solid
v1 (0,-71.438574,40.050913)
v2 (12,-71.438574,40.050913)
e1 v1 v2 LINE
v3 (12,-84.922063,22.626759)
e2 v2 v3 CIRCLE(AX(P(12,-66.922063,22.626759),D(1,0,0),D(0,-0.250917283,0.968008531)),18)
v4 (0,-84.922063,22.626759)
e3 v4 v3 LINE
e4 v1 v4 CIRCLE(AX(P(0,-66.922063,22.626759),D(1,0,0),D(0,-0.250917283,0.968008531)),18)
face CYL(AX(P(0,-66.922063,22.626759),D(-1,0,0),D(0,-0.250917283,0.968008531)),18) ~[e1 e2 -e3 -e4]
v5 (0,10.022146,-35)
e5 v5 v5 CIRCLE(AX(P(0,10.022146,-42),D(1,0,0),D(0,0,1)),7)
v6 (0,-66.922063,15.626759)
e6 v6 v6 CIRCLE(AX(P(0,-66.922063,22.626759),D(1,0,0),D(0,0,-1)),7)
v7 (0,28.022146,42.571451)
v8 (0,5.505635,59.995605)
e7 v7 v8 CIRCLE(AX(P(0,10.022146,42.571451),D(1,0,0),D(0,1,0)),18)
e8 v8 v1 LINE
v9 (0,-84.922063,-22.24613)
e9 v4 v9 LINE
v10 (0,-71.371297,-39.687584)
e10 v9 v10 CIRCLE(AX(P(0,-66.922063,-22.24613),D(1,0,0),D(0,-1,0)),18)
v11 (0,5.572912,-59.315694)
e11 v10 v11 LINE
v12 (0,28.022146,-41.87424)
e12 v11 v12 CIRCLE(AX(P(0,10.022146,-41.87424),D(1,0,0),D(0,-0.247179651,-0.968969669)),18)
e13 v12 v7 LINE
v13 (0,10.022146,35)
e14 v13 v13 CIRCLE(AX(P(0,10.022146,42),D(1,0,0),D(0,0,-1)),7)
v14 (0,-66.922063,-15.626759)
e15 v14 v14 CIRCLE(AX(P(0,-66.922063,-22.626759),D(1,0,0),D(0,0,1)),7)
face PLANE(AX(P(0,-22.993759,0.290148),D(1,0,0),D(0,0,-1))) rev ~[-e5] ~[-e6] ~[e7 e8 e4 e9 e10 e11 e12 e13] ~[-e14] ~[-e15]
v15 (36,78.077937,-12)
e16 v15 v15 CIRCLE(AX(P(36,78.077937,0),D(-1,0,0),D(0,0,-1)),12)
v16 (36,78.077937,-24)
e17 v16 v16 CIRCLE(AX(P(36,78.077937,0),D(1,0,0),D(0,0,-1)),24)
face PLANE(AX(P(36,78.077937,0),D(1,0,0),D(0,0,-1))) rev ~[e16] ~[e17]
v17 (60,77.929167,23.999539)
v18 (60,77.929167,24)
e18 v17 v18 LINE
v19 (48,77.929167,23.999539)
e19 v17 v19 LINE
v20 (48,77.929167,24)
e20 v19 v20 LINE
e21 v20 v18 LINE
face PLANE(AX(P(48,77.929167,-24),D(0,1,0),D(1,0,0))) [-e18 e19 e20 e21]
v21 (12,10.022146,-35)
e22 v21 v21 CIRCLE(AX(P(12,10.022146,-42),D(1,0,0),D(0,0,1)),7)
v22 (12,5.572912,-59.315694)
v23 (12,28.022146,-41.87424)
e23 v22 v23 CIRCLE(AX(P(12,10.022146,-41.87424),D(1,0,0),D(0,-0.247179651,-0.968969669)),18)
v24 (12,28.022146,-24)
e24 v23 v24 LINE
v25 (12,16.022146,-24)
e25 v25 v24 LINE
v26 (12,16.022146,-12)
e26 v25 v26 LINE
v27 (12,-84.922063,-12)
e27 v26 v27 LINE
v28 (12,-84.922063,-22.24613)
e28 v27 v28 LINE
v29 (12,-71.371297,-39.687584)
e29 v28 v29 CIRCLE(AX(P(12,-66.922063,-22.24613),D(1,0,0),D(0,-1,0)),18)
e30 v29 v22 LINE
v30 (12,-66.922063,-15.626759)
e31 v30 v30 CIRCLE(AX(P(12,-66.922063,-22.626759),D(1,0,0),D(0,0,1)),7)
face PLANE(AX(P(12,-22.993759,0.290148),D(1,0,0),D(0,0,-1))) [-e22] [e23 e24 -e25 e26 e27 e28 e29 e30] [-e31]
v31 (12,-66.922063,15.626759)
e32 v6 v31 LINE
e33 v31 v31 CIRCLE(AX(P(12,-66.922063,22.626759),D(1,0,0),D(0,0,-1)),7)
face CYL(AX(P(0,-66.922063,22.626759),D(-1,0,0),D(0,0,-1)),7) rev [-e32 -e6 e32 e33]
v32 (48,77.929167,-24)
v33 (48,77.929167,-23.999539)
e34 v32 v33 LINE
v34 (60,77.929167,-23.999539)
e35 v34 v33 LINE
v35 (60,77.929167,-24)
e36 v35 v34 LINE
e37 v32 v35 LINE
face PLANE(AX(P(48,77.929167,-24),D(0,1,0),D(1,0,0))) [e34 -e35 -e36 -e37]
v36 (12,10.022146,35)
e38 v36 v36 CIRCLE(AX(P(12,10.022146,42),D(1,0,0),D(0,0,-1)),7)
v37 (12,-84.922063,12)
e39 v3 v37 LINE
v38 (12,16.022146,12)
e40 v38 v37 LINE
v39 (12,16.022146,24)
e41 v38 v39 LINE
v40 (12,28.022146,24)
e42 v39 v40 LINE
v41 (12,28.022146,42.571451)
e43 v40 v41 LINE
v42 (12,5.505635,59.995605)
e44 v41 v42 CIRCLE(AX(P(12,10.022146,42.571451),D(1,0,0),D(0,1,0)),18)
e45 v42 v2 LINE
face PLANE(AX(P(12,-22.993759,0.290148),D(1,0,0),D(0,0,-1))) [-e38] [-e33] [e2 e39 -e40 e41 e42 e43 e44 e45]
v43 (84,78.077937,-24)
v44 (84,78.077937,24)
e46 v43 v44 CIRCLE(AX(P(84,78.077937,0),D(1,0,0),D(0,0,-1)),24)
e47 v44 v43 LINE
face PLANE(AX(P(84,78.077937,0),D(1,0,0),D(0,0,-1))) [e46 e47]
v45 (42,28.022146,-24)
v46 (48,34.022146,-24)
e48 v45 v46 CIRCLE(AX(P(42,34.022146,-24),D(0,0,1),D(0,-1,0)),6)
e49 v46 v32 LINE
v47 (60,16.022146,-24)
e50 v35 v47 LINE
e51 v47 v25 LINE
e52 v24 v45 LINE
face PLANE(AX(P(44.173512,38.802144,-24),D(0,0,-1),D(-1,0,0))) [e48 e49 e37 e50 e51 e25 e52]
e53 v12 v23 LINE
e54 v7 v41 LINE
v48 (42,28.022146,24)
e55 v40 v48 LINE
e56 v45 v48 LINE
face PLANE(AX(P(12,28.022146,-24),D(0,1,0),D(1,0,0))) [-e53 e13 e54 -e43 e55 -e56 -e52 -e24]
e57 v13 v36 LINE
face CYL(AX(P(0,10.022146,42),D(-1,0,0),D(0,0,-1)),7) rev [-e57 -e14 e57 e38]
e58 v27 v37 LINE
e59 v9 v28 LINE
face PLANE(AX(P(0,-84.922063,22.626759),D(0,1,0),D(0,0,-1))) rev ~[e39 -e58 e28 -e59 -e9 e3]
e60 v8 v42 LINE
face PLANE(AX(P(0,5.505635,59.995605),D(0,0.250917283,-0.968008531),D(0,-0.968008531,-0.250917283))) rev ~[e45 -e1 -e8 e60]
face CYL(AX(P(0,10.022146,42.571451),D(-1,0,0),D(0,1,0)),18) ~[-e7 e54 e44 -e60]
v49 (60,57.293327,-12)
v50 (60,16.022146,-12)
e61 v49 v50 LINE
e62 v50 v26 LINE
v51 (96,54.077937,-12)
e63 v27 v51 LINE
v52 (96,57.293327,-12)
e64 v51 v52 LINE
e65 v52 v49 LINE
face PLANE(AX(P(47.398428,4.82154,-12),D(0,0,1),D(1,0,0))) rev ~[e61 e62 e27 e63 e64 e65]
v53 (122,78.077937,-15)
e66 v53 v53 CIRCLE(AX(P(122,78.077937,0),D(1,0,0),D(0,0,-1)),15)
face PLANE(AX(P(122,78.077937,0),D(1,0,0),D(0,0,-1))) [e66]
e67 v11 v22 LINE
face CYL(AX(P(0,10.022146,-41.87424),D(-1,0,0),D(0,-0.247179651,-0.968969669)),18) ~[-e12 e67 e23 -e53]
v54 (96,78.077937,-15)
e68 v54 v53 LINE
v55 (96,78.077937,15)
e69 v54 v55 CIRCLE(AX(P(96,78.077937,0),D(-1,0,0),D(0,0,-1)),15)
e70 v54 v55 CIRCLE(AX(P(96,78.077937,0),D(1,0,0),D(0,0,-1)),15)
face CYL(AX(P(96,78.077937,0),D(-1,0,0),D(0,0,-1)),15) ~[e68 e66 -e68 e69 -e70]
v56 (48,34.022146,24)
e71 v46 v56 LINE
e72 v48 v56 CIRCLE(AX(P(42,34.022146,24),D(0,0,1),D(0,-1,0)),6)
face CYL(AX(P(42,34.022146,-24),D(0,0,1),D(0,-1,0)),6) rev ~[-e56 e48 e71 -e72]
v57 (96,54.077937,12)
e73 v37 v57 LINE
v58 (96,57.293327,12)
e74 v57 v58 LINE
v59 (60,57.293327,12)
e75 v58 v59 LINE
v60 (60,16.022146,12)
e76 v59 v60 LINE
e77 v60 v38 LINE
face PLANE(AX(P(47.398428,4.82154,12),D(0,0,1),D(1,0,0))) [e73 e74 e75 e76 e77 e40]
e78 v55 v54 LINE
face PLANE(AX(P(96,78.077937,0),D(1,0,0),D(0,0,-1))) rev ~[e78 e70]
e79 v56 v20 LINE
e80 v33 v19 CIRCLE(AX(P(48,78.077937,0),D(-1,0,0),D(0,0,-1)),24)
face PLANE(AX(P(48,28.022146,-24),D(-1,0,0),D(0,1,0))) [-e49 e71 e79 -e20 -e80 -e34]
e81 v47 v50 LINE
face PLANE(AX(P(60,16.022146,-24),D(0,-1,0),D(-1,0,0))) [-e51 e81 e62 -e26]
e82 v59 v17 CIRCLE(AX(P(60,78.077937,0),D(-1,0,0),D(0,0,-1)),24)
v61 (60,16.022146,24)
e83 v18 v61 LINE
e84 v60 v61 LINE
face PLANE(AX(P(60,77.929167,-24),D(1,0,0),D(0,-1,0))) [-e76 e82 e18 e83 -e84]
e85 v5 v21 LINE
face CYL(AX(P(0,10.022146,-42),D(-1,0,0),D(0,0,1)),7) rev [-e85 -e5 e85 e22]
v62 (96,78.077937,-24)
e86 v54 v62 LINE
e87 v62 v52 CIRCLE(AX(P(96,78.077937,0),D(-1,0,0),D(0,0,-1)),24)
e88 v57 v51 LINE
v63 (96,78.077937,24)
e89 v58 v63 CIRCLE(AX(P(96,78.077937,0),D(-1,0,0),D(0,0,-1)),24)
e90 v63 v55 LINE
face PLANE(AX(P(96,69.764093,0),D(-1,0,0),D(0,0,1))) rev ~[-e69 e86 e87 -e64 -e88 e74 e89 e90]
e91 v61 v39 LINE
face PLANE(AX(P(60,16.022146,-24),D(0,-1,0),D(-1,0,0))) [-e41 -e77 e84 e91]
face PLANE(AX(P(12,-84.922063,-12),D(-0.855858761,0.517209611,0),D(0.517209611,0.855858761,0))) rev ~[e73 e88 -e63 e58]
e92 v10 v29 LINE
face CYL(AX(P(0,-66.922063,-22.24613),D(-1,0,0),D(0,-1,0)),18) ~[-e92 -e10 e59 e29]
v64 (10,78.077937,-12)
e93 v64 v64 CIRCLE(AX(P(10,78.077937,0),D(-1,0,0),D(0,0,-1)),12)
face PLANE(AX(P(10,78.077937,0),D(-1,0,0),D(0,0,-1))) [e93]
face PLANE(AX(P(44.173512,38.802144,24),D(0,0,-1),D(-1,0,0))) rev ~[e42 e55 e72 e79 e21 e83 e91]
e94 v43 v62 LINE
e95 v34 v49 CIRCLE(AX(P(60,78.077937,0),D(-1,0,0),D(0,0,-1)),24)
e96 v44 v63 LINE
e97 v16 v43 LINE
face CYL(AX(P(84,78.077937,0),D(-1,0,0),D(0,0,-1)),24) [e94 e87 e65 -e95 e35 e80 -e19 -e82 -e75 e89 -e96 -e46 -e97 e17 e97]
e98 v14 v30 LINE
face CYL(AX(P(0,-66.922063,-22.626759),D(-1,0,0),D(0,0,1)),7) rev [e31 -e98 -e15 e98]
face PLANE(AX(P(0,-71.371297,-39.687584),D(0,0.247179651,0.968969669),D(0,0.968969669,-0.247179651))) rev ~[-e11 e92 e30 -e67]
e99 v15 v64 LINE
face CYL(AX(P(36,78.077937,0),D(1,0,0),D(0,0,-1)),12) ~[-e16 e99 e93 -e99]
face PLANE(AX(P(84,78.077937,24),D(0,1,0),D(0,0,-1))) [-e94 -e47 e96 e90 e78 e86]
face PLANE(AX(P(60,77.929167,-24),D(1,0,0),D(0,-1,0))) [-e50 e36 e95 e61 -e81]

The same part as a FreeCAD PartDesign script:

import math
import FreeCAD as App
import Part
import Sketcher
Q = App.Units.Quantity


def edges_at(feature, points):
    """Names of the edges that pass closest to the given points."""
    edges = feature.Shape.Edges
    near = lambda p: min(range(len(edges)), key=lambda i: edges[i].distToShape(Part.Vertex(*p))[0])
    return sorted({f"Edge{near(p) + 1}" for p in points})


def add_polygon(sketch, points):
    """Adds a closed chain of lines whose ends are joined by coincident constraints."""
    first, n = sketch.GeometryCount, len(points)
    for a, b in zip(points, points[1:] + points[:1]):
        sketch.addGeometry(Part.LineSegment(App.Vector(*a, 0), App.Vector(*b, 0)), False)
    for i in range(n):
        sketch.addConstraint(Sketcher.Constraint("Coincident", first + i, 2, first + (i + 1) % n, 1))

doc = App.newDocument("Part")
body = doc.addObject("PartDesign::Body", "Body")

# Sketch on YZ plane
sketch1 = doc.addObject("Sketcher::SketchObject", "Sketch")
body.addObject(sketch1)
sketch1.AttachmentSupport = (doc.YZ_Plane, [""])
sketch1.MapMode = "FlatFace"
sketch1.addGeometry(Part.LineSegment(App.Vector(6, 60, 0), App.Vector(-71, 40, 0)), False)
sketch1.addGeometry(Part.ArcOfCircle(Part.Circle(App.Vector(-67, 23, 0), App.Vector(0, 0, 1), 18), math.radians(105), math.radians(180)), False)
sketch1.addGeometry(Part.LineSegment(App.Vector(-85, 23, 0), App.Vector(-85, -22, 0)), False)
sketch1.addGeometry(Part.ArcOfCircle(Part.Circle(App.Vector(-67, -22, 0), App.Vector(0, 0, 1), 18), math.radians(-180), math.radians(-104)), False)
sketch1.addGeometry(Part.LineSegment(App.Vector(-71, -40, 0), App.Vector(6, -59, 0)), False)
sketch1.addGeometry(Part.ArcOfCircle(Part.Circle(App.Vector(10, -42, 0), App.Vector(0, 0, 1), 18), math.radians(-104), math.radians(0)), False)
sketch1.addGeometry(Part.LineSegment(App.Vector(28, -42, 0), App.Vector(28, 43, 0)), False)
sketch1.addGeometry(Part.ArcOfCircle(Part.Circle(App.Vector(10, 43, 0), App.Vector(0, 0, 1), 18), math.radians(0), math.radians(105)), False)
sketch1.addGeometry(Part.Circle(App.Vector(-67, 23, 0), App.Vector(0, 0, 1), 7), False)
sketch1.addGeometry(Part.Circle(App.Vector(-67, -23, 0), App.Vector(0, 0, 1), 7), False)
sketch1.addGeometry(Part.Circle(App.Vector(10, 42, 0), App.Vector(0, 0, 1), 7), False)
sketch1.addGeometry(Part.Circle(App.Vector(10, -42, 0), App.Vector(0, 0, 1), 7), False)
sketch1.addConstraint(Sketcher.Constraint("Tangent", 0, 2, 1, 1))
sketch1.addConstraint(Sketcher.Constraint("Tangent", 1, 2, 2, 1))
sketch1.addConstraint(Sketcher.Constraint("Tangent", 2, 2, 3, 1))
sketch1.addConstraint(Sketcher.Constraint("Tangent", 3, 2, 4, 1))
sketch1.addConstraint(Sketcher.Constraint("Tangent", 4, 2, 5, 1))
sketch1.addConstraint(Sketcher.Constraint("Tangent", 5, 2, 6, 1))
sketch1.addConstraint(Sketcher.Constraint("Tangent", 6, 2, 7, 1))
sketch1.addConstraint(Sketcher.Constraint("Tangent", 7, 2, 0, 1))
sketch1.addConstraint(Sketcher.Constraint("Vertical", 2))
sketch1.addConstraint(Sketcher.Constraint("Vertical", 6))
sketch1.addConstraint(Sketcher.Constraint("Coincident", 8, 3, 1, 3))
sketch1.addConstraint(Sketcher.Constraint("Equal", 1, 3))
sketch1.addConstraint(Sketcher.Constraint("Equal", 3, 5))
sketch1.addConstraint(Sketcher.Constraint("Equal", 5, 7))
sketch1.addConstraint(Sketcher.Constraint("Equal", 8, 9))
sketch1.addConstraint(Sketcher.Constraint("Equal", 9, 10))
sketch1.addConstraint(Sketcher.Constraint("Equal", 10, 11))
sketch1.addConstraint(Sketcher.Constraint("Symmetric", 1, 3, 9, 3, -1))
sketch1.addConstraint(Sketcher.Constraint("Symmetric", 10, 3, 11, 3, -1))
sketch1.addConstraint(Sketcher.Constraint("Vertical", 7, 3, 10, 3))
sketch1.addConstraint(Sketcher.Constraint("Diameter", 8, Q("14 mm")))
sketch1.addConstraint(Sketcher.Constraint("Radius", 1, Q("18 mm")))
sketch1.addConstraint(Sketcher.Constraint("DistanceY", -1, 1, 10, 3, Q("42 mm")))
sketch1.addConstraint(Sketcher.Constraint("DistanceY", 5, 3, 1, 3, Q("64.500999 mm")))
sketch1.addConstraint(Sketcher.Constraint("DistanceY", 2, 2, 2, 1, Q("44.87289 mm")))
sketch1.addConstraint(Sketcher.Constraint("DistanceY", 6, 1, 6, 2, Q("84.445691 mm")))
sketch1.addConstraint(Sketcher.Constraint("Distance", 0, Q("79.487119 mm")))
sketch1.addConstraint(Sketcher.Constraint("DistanceY", -1, 1, 1, 3, Q("22.626759 mm")))
sketch1.addConstraint(Sketcher.Constraint("DistanceX", 1, 3, -1, 1, Q("66.922063 mm")))
pad1 = doc.addObject("PartDesign::Pad", "Pad")
body.addObject(pad1)
pad1.Profile = sketch1
pad1.Length = 12
body2 = doc.addObject("PartDesign::Body", "Body001")

# Sketch on YZ plane
sketch2 = doc.addObject("Sketcher::SketchObject", "Sketch001")
body2.addObject(sketch2)
sketch2.AttachmentSupport = (doc.getObject("YZ_Plane001"), [""])
sketch2.MapMode = "FlatFace"
sketch2.AttachmentOffset = App.Placement(App.Vector(0, 0, 36), App.Rotation())
sketch2.addGeometry(Part.Circle(App.Vector(78, 0, 0), App.Vector(0, 0, 1), 24), False)
sketch2.addConstraint(Sketcher.Constraint("PointOnObject", 0, 3, -1))
sketch2.addConstraint(Sketcher.Constraint("Diameter", 0, Q("48 mm")))
sketch2.addConstraint(Sketcher.Constraint("DistanceX", -1, 1, 0, 3, Q("78.077937 mm")))
pad2 = doc.addObject("PartDesign::Pad", "Pad001")
body2.addObject(pad2)
pad2.Profile = sketch2
pad2.Length = 48

# Sketch on YZ plane
sketch3 = doc.addObject("Sketcher::SketchObject", "Sketch002")
body2.addObject(sketch3)
sketch3.AttachmentSupport = (doc.getObject("YZ_Plane001"), [""])
sketch3.MapMode = "FlatFace"
sketch3.AttachmentOffset = App.Placement(App.Vector(0, 0, 84), App.Rotation())
sketch3.addGeometry(Part.LineSegment(App.Vector(78, -24, 0), App.Vector(78, 24, 0)), False)
sketch3.addGeometry(Part.ArcOfCircle(Part.Circle(App.Vector(78, 0, 0), App.Vector(0, 0, 1), 24), math.radians(90), math.radians(270)), False)
sketch3.addConstraint(Sketcher.Constraint("Coincident", 0, 1, 1, 2))
sketch3.addConstraint(Sketcher.Constraint("Coincident", 1, 1, 0, 2))
sketch3.addConstraint(Sketcher.Constraint("Vertical", 0))
sketch3.addConstraint(Sketcher.Constraint("PointOnObject", 1, 3, -1))
sketch3.addConstraint(Sketcher.Constraint("Vertical", 1, 3, 0, 1))
sketch3.addConstraint(Sketcher.Constraint("Radius", 1, Q("24 mm")))
sketch3.addConstraint(Sketcher.Constraint("DistanceX", -1, 1, 1, 3, Q("78.077937 mm")))
pad3 = doc.addObject("PartDesign::Pad", "Pad002")
body2.addObject(pad3)
pad3.Profile = sketch3
pad3.Length = 12

# Sketch on YZ plane
sketch4 = doc.addObject("Sketcher::SketchObject", "Sketch003")
body2.addObject(sketch4)
sketch4.AttachmentSupport = (doc.getObject("YZ_Plane001"), [""])
sketch4.MapMode = "FlatFace"
sketch4.AttachmentOffset = App.Placement(App.Vector(0, 0, 96), App.Rotation())
sketch4.addGeometry(Part.Circle(App.Vector(78, 0, 0), App.Vector(0, 0, 1), 15), False)
sketch4.addConstraint(Sketcher.Constraint("PointOnObject", 0, 3, -1))
sketch4.addConstraint(Sketcher.Constraint("Diameter", 0, Q("30 mm")))
sketch4.addConstraint(Sketcher.Constraint("DistanceX", -1, 1, 0, 3, Q("78.077937 mm")))
pad4 = doc.addObject("PartDesign::Pad", "Pad003")
body2.addObject(pad4)
pad4.Profile = sketch4
pad4.Length = 26

# Sketch on YZ plane
sketch5 = doc.addObject("Sketcher::SketchObject", "Sketch004")
body2.addObject(sketch5)
sketch5.AttachmentSupport = (doc.getObject("YZ_Plane001"), [""])
sketch5.MapMode = "FlatFace"
sketch5.AttachmentOffset = App.Placement(App.Vector(0, 0, 36), App.Rotation())
sketch5.addGeometry(Part.Circle(App.Vector(78, 0, 0), App.Vector(0, 0, 1), 12), False)
sketch5.addConstraint(Sketcher.Constraint("PointOnObject", 0, 3, -1))
sketch5.addConstraint(Sketcher.Constraint("Diameter", 0, Q("24 mm")))
sketch5.addConstraint(Sketcher.Constraint("DistanceX", -1, 1, 0, 3, Q("78.077937 mm")))
pad5 = doc.addObject("PartDesign::Pad", "Pad004")
body2.addObject(pad5)
pad5.Profile = sketch5
pad5.Length = 26
pad5.Reversed = True
body.AllowCompound = True
doc.recompute()

boolean = doc.addObject("PartDesign::Boolean", "Boolean")
body.addObject(boolean)
boolean.Type = "Fuse"
boolean.addObjects([body2])

# Sketch on XY plane
sketch6 = doc.addObject("Sketcher::SketchObject", "Sketch005")
body.addObject(sketch6)
sketch6.AttachmentSupport = (doc.XY_Plane, [""])
sketch6.MapMode = "FlatFace"
add_polygon(sketch6, [(48, 28), (12, 28), (12, 16), (60, 16), (60, 78), (48, 78)])  # lines 0-5
sketch6.addConstraint(Sketcher.Constraint("Horizontal", 0))
sketch6.addConstraint(Sketcher.Constraint("Vertical", 1))
sketch6.addConstraint(Sketcher.Constraint("Horizontal", 2))
sketch6.addConstraint(Sketcher.Constraint("Vertical", 3))
sketch6.addConstraint(Sketcher.Constraint("Horizontal", 4))
sketch6.addConstraint(Sketcher.Constraint("Vertical", 5))
sketch6.addConstraint(Sketcher.Constraint("Equal", 4, 1))
sketch6.addConstraint(Sketcher.Constraint("DistanceX", 0, 2, 0, 1, Q("36 mm")))
sketch6.addConstraint(Sketcher.Constraint("DistanceX", 2, 1, 2, 2, Q("48 mm")))
sketch6.addConstraint(Sketcher.Constraint("DistanceX", -1, 1, 0, 2, Q("12 mm")))
sketch6.addConstraint(Sketcher.Constraint("DistanceY", 3, 1, 3, 2, Q("61.907021 mm")))
sketch6.addConstraint(Sketcher.Constraint("DistanceY", -1, 1, 0, 2, Q("28.022146 mm")))
pad6 = doc.addObject("PartDesign::Pad", "Pad005")
body.addObject(pad6)
pad6.Profile = sketch6
pad6.Type = "TwoLengths"
pad6.Length = 24
pad6.Length2 = 24
doc.recompute()

fillet = doc.addObject("PartDesign::Fillet", "Fillet")
body.addObject(fillet)
fillet.Base = (pad6, edges_at(pad6, [(48, 28.022, 0)]))
fillet.Radius = 6

# Sketch on XY plane
sketch7 = doc.addObject("Sketcher::SketchObject", "Sketch006")
body.addObject(sketch7)
sketch7.AttachmentSupport = (doc.XY_Plane, [""])
sketch7.MapMode = "FlatFace"
add_polygon(sketch7, [(96, 78), (60, 78), (60, 16), (12, 16), (12, -85), (96, 54)])  # lines 0-5
sketch7.addConstraint(Sketcher.Constraint("Vertical", 1))
sketch7.addConstraint(Sketcher.Constraint("Horizontal", 2))
sketch7.addConstraint(Sketcher.Constraint("Vertical", 3))
sketch7.addConstraint(Sketcher.Constraint("Vertical", 5))
sketch7.addConstraint(Sketcher.Constraint("DistanceX", 2, 2, 2, 1, Q("48 mm")))
sketch7.addConstraint(Sketcher.Constraint("DistanceY", 5, 1, 5, 2, Q("24 mm")))
sketch7.addConstraint(Sketcher.Constraint("DistanceX", -1, 1, 0, 2, Q("60 mm")))
sketch7.addConstraint(Sketcher.Constraint("DistanceX", -1, 1, 4, 2, Q("96 mm")))
sketch7.addConstraint(Sketcher.Constraint("DistanceY", 3, 2, 4, 2, Q("139 mm")))
sketch7.addConstraint(Sketcher.Constraint("DistanceY", 1, 2, 1, 1, Q("61.907021 mm")))
sketch7.addConstraint(Sketcher.Constraint("DistanceY", 3, 2, 3, 1, Q("100.944209 mm")))
sketch7.addConstraint(Sketcher.Constraint("DistanceY", -1, 1, 0, 2, Q("77.929167 mm")))
pad7 = doc.addObject("PartDesign::Pad", "Pad006")
body.addObject(pad7)
pad7.Profile = sketch7
pad7.Type = "TwoLengths"
pad7.Length = 12
pad7.Length2 = 12

doc.recompute()
